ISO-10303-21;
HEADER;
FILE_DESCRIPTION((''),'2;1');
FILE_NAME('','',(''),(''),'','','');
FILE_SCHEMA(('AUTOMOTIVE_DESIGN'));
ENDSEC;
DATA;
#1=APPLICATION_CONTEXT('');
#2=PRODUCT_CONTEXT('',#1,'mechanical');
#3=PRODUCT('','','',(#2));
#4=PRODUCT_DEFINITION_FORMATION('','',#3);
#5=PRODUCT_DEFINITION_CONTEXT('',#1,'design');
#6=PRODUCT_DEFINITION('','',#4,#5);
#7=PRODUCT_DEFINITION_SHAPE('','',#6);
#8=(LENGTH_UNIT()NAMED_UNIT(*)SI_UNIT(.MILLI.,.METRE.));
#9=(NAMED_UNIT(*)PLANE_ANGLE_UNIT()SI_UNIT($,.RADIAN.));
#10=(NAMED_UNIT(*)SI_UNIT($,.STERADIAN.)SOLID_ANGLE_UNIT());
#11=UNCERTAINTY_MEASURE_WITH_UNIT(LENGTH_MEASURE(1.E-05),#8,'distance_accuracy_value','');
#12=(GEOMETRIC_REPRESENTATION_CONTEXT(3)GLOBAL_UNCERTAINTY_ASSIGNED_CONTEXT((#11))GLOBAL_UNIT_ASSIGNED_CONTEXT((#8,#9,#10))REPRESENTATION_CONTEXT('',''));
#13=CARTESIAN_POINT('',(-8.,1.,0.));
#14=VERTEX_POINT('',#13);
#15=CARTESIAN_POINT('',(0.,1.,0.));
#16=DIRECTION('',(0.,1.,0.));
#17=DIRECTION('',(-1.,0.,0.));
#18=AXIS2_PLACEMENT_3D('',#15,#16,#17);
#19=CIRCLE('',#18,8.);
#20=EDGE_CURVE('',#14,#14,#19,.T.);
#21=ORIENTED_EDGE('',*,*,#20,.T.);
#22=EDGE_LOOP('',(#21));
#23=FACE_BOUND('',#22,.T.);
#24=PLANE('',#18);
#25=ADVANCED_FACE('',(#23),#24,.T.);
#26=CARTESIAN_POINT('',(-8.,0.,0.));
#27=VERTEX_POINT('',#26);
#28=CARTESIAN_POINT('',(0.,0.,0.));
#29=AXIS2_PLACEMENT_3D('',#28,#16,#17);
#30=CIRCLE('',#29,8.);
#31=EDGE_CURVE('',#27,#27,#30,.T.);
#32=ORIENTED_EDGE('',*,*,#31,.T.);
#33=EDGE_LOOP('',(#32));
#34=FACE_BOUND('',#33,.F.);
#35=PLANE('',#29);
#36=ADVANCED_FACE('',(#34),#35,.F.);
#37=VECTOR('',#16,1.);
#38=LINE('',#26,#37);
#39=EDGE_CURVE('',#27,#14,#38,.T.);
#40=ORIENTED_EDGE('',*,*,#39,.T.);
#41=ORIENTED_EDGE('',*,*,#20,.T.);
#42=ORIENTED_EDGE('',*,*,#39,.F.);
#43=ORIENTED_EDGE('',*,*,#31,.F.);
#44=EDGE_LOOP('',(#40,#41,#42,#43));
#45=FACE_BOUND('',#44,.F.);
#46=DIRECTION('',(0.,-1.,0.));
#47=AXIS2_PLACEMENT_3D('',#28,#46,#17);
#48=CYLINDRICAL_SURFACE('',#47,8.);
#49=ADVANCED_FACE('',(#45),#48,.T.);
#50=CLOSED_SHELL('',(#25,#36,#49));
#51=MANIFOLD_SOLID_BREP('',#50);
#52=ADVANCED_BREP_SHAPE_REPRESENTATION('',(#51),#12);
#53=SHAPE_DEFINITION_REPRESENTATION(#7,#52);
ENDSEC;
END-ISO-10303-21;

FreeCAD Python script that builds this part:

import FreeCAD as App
import Part
import Sketcher

V = App.Vector
Q = App.Units.Quantity

doc = App.newDocument("Part")
body = doc.addObject("PartDesign::Body", "Body")

# Sketch on XZ plane
sketch1 = body.newObject("Sketcher::SketchObject", "Sketch")
sketch1.AttachmentSupport = (doc.getObject("XZ_Plane"), [""])
sketch1.MapMode = "FlatFace"
sketch1.addGeometry(Part.Circle(V(0, 0, 0), V(0, 0, 1), 8), False)
sketch1.addConstraint([
    Sketcher.Constraint("Coincident", 0, 3, -1, 1),
    Sketcher.Constraint("Diameter", 0, Q("16 mm")),
])
pad1 = body.newObject("PartDesign::Pad", "Pad")
pad1.Profile = sketch1
pad1.Length = 1
pad1.Reversed = True

doc.recompute()
